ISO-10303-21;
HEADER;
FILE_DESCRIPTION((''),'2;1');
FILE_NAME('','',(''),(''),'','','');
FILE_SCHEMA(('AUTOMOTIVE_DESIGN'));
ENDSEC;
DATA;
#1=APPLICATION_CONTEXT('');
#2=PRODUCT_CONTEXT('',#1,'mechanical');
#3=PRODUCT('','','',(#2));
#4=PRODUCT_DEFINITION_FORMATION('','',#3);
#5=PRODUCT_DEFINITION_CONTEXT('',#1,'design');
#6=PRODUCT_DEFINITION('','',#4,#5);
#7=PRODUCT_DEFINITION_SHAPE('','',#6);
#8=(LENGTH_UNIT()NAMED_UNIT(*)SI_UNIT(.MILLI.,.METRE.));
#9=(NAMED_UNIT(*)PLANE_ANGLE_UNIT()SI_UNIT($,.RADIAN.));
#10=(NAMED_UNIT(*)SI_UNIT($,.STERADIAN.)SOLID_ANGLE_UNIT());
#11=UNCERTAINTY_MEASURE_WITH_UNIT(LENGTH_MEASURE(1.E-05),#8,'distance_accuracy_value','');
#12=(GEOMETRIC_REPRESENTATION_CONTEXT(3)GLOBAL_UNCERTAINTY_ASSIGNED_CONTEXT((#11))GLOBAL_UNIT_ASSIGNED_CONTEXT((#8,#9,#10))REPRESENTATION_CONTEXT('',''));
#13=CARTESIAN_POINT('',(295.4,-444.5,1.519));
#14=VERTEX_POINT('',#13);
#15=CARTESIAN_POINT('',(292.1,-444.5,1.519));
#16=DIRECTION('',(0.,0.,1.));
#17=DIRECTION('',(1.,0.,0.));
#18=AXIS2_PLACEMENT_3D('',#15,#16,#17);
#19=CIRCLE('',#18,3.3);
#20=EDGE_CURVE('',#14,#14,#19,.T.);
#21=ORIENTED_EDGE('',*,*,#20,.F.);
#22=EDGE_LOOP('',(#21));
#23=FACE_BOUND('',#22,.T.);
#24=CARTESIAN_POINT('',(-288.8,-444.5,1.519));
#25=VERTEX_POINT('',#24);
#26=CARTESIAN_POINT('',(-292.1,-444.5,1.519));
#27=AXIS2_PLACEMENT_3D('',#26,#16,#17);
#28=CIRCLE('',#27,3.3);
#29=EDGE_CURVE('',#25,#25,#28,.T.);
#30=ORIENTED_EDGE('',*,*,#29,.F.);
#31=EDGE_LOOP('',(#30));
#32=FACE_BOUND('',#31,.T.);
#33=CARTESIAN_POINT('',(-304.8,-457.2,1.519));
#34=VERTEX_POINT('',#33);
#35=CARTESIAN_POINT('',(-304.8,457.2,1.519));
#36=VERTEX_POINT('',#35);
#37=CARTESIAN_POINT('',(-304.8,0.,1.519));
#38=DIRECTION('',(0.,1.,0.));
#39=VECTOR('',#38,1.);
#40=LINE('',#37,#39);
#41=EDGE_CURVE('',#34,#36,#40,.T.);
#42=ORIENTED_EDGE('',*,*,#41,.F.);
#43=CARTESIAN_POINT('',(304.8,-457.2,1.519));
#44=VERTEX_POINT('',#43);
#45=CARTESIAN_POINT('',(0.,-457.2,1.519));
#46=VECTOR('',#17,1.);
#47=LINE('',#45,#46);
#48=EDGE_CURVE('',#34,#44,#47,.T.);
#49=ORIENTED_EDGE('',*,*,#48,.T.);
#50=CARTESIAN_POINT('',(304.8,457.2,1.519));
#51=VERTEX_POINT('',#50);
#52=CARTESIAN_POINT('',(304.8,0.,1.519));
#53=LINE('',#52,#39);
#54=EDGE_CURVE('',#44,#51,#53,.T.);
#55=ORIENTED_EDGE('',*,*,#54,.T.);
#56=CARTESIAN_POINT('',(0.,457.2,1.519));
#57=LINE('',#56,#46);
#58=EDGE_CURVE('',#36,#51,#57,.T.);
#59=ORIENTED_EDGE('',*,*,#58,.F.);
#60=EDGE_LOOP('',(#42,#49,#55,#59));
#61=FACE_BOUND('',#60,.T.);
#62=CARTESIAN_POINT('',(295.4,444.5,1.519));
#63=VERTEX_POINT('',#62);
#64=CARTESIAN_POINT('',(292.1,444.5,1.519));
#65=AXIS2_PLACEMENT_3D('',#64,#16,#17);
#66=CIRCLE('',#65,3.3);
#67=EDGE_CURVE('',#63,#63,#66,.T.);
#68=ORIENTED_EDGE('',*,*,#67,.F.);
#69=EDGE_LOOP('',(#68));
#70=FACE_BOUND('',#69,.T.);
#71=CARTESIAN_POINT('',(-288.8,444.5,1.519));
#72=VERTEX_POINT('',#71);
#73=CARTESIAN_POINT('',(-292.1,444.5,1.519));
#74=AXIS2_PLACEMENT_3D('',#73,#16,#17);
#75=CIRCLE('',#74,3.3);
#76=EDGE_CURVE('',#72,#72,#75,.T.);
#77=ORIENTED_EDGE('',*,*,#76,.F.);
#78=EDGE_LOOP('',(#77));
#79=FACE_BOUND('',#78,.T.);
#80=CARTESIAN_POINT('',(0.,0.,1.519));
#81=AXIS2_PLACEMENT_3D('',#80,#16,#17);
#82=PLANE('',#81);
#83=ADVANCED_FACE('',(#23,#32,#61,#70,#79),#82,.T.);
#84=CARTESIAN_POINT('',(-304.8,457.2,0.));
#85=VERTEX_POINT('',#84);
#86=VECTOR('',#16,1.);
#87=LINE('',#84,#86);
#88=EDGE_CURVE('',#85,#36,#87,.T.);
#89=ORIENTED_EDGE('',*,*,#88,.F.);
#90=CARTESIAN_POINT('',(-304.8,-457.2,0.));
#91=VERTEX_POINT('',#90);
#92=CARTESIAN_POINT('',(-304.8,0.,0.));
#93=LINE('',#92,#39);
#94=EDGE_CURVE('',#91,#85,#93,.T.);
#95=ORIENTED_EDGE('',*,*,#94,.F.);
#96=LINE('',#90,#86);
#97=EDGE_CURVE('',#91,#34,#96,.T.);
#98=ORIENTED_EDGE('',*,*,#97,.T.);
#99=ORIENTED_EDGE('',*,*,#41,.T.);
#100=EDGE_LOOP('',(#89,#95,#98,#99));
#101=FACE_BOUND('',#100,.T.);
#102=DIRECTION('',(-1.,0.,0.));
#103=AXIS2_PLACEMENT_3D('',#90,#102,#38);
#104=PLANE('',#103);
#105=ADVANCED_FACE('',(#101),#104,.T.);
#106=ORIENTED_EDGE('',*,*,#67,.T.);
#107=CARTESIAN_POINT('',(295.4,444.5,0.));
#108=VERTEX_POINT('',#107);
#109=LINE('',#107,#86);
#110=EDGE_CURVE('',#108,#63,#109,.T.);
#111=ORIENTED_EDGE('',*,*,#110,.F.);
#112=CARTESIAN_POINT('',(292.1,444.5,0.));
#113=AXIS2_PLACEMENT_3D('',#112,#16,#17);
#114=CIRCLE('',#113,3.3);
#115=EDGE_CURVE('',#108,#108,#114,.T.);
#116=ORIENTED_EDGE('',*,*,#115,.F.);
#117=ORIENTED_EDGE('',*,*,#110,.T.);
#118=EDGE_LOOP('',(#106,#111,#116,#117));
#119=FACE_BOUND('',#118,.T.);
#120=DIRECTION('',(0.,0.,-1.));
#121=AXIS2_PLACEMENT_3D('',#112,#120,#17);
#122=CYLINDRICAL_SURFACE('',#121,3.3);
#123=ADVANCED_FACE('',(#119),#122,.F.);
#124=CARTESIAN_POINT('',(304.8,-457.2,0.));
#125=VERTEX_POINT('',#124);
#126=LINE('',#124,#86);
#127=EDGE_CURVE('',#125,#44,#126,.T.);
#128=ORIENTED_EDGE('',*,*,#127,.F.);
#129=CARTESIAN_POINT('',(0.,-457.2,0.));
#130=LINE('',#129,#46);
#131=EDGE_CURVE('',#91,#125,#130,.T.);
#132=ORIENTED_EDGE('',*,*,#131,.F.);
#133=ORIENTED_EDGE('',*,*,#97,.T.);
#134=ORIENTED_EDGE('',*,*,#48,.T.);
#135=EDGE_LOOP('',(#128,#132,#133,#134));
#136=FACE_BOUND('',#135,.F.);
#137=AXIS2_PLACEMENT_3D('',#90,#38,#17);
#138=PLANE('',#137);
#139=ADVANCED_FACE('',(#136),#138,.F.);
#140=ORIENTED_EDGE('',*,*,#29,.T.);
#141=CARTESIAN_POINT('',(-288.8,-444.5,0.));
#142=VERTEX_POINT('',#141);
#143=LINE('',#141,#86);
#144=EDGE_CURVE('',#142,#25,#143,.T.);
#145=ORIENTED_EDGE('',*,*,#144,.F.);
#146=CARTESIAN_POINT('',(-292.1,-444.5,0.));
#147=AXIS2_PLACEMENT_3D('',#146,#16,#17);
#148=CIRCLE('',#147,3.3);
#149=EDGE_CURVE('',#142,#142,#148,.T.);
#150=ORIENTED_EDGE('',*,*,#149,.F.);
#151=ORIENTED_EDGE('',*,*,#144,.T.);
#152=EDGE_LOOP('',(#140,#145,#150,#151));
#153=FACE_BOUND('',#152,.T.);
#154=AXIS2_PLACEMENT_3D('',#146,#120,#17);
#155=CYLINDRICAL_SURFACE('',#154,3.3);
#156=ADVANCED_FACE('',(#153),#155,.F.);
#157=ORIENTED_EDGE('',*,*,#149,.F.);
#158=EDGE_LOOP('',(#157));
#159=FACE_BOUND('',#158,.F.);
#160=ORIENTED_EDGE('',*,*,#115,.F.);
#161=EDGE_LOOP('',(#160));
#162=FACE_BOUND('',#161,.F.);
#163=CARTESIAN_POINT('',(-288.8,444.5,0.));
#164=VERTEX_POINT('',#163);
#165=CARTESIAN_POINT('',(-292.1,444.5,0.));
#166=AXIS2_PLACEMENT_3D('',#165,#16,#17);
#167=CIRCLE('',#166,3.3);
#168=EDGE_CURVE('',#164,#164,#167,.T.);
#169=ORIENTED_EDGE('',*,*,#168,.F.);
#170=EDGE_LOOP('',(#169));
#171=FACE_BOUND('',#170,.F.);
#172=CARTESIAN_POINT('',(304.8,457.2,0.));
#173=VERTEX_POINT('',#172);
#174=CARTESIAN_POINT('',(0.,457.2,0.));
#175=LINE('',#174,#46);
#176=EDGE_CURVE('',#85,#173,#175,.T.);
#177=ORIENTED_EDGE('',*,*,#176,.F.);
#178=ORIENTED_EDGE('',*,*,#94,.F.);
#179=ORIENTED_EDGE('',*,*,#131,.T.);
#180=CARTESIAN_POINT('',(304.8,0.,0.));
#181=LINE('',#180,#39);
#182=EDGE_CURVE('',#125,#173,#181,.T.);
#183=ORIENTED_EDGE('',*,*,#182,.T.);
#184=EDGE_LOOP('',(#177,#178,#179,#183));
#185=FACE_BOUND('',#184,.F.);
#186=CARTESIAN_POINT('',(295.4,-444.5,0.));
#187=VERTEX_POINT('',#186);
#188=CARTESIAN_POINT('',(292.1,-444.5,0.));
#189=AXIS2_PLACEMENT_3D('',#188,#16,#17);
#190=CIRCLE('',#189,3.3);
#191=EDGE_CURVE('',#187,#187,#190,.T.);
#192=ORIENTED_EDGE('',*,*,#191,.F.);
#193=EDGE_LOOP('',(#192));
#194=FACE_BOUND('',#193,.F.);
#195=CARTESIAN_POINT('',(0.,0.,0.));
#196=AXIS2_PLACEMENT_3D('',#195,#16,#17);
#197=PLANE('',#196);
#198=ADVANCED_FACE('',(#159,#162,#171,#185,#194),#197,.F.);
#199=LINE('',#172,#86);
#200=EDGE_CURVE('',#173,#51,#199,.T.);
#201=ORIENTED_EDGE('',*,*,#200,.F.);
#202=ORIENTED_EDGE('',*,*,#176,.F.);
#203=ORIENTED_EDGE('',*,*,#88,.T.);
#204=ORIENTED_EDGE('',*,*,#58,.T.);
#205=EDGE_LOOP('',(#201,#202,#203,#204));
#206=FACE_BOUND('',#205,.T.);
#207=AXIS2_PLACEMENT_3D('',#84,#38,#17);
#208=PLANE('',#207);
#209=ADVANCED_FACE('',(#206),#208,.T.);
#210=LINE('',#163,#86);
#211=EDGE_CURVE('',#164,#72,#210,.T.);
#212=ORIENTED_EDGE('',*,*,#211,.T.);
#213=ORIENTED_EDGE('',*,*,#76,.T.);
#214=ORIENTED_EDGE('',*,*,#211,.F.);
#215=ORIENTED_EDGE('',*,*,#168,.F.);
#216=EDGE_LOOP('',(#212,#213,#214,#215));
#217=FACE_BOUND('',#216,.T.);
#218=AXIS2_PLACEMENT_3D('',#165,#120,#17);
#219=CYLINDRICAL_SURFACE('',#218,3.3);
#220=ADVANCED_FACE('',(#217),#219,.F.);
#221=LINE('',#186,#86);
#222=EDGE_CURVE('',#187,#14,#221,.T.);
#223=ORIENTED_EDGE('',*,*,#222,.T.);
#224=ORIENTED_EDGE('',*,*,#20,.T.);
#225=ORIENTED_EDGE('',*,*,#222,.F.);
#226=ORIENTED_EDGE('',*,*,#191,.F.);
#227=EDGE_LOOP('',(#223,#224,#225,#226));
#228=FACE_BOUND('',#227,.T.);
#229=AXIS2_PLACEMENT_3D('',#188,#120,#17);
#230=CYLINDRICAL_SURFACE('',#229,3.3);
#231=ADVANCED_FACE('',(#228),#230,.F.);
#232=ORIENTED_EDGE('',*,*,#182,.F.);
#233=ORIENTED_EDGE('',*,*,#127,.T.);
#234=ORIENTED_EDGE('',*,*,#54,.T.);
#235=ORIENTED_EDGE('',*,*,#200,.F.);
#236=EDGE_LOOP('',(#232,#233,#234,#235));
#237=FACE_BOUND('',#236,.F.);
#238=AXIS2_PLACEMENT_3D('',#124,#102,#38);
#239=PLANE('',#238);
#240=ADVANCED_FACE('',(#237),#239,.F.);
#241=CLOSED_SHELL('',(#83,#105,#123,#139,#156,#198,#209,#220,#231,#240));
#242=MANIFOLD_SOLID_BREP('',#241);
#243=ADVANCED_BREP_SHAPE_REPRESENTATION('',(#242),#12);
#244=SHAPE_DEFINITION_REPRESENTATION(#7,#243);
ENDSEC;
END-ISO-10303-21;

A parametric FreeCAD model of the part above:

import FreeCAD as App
import Part
import Sketcher
Q = App.Units.Quantity


def add_polygon(sketch, points):
    """Adds a closed chain of lines whose ends are joined by coincident constraints."""
    first, n = sketch.GeometryCount, len(points)
    for a, b in zip(points, points[1:] + points[:1]):
        sketch.addGeometry(Part.LineSegment(App.Vector(*a, 0), App.Vector(*b, 0)), False)
    for i in range(n):
        sketch.addConstraint(Sketcher.Constraint("Coincident", first + i, 2, first + (i + 1) % n, 1))

doc = App.newDocument("Part")
params = doc.addObject("Spreadsheet::Sheet", "Params")
for row, (alias, value) in enumerate([
    ("sketch1_width", "24 in"),
    ("sketch1_height", "36 in"),
    ("pad1_length", "1.519 mm"),
], start=1):
    params.set(f"A{row}", alias)
    params.set(f"B{row}", "=" + value)
    params.setAlias(f"B{row}", alias)

body = doc.addObject("PartDesign::Body", "Body")

# Sketch on XY plane
sketch1 = body.newObject("Sketcher::SketchObject", "Sketch")
sketch1.AttachmentSupport = (doc.getObject("XY_Plane"), [""])
sketch1.MapMode = "FlatFace"
add_polygon(sketch1, [(-304.8, 457.2), (-304.8, -457.2), (304.8, -457.2), (304.8, 457.2)])  # lines 0-3
sketch1.addGeometry(Part.Circle(App.Vector(-292.1, -444.5, 0), App.Vector(0, 0, 1), 3.3), False)  # 4
sketch1.addGeometry(Part.Circle(App.Vector(292.1, -444.5, 0), App.Vector(0, 0, 1), 3.3), False)  # 5
sketch1.addGeometry(Part.Circle(App.Vector(-292.1, 444.5, 0), App.Vector(0, 0, 1), 3.3), False)  # 6
sketch1.addGeometry(Part.Circle(App.Vector(292.1, 444.5, 0), App.Vector(0, 0, 1), 3.3), False)  # 7
sketch1.addConstraint(Sketcher.Constraint("Vertical", 0))
sketch1.addConstraint(Sketcher.Constraint("Horizontal", 1))
sketch1.addConstraint(Sketcher.Constraint("Vertical", 2))
sketch1.addConstraint(Sketcher.Constraint("Horizontal", 3))
sketch1.addConstraint(Sketcher.Constraint("Equal", 4, 5))
sketch1.addConstraint(Sketcher.Constraint("Equal", 5, 6))
sketch1.addConstraint(Sketcher.Constraint("Equal", 6, 7))
sketch1.addConstraint(Sketcher.Constraint("Symmetric", 5, 3, 6, 3, -1, 1))
sketch1.addConstraint(Sketcher.Constraint("Symmetric", 4, 3, 7, 3, -1, 1))
sketch1.addConstraint(Sketcher.Constraint("Symmetric", 0, 2, 2, 2, -1, 1))
sketch1.addConstraint(Sketcher.Constraint("Symmetric", 4, 3, 5, 3, -2))
sketch1.addConstraint(Sketcher.Constraint("DistanceX", 1, 1, 1, 2, Q("24 in")))
sketch1.addConstraint(Sketcher.Constraint("DistanceY", 0, 2, 0, 1, Q("36 in")))
sketch1.addConstraint(Sketcher.Constraint("DistanceX", 4, 3, 5, 3, Q("23 in")))
sketch1.addConstraint(Sketcher.Constraint("DistanceY", 4, 3, 6, 3, Q("35 in")))
sketch1.addConstraint(Sketcher.Constraint("Diameter", 4, 6.6))
sketch1.setExpression("Constraints[15]", "Params.sketch1_width")
sketch1.setExpression("Constraints[16]", "Params.sketch1_height")
pad1 = body.newObject("PartDesign::Pad", "Pad")
pad1.Profile = sketch1
pad1.setExpression("Length", "Params.pad1_length")

doc.recompute()
